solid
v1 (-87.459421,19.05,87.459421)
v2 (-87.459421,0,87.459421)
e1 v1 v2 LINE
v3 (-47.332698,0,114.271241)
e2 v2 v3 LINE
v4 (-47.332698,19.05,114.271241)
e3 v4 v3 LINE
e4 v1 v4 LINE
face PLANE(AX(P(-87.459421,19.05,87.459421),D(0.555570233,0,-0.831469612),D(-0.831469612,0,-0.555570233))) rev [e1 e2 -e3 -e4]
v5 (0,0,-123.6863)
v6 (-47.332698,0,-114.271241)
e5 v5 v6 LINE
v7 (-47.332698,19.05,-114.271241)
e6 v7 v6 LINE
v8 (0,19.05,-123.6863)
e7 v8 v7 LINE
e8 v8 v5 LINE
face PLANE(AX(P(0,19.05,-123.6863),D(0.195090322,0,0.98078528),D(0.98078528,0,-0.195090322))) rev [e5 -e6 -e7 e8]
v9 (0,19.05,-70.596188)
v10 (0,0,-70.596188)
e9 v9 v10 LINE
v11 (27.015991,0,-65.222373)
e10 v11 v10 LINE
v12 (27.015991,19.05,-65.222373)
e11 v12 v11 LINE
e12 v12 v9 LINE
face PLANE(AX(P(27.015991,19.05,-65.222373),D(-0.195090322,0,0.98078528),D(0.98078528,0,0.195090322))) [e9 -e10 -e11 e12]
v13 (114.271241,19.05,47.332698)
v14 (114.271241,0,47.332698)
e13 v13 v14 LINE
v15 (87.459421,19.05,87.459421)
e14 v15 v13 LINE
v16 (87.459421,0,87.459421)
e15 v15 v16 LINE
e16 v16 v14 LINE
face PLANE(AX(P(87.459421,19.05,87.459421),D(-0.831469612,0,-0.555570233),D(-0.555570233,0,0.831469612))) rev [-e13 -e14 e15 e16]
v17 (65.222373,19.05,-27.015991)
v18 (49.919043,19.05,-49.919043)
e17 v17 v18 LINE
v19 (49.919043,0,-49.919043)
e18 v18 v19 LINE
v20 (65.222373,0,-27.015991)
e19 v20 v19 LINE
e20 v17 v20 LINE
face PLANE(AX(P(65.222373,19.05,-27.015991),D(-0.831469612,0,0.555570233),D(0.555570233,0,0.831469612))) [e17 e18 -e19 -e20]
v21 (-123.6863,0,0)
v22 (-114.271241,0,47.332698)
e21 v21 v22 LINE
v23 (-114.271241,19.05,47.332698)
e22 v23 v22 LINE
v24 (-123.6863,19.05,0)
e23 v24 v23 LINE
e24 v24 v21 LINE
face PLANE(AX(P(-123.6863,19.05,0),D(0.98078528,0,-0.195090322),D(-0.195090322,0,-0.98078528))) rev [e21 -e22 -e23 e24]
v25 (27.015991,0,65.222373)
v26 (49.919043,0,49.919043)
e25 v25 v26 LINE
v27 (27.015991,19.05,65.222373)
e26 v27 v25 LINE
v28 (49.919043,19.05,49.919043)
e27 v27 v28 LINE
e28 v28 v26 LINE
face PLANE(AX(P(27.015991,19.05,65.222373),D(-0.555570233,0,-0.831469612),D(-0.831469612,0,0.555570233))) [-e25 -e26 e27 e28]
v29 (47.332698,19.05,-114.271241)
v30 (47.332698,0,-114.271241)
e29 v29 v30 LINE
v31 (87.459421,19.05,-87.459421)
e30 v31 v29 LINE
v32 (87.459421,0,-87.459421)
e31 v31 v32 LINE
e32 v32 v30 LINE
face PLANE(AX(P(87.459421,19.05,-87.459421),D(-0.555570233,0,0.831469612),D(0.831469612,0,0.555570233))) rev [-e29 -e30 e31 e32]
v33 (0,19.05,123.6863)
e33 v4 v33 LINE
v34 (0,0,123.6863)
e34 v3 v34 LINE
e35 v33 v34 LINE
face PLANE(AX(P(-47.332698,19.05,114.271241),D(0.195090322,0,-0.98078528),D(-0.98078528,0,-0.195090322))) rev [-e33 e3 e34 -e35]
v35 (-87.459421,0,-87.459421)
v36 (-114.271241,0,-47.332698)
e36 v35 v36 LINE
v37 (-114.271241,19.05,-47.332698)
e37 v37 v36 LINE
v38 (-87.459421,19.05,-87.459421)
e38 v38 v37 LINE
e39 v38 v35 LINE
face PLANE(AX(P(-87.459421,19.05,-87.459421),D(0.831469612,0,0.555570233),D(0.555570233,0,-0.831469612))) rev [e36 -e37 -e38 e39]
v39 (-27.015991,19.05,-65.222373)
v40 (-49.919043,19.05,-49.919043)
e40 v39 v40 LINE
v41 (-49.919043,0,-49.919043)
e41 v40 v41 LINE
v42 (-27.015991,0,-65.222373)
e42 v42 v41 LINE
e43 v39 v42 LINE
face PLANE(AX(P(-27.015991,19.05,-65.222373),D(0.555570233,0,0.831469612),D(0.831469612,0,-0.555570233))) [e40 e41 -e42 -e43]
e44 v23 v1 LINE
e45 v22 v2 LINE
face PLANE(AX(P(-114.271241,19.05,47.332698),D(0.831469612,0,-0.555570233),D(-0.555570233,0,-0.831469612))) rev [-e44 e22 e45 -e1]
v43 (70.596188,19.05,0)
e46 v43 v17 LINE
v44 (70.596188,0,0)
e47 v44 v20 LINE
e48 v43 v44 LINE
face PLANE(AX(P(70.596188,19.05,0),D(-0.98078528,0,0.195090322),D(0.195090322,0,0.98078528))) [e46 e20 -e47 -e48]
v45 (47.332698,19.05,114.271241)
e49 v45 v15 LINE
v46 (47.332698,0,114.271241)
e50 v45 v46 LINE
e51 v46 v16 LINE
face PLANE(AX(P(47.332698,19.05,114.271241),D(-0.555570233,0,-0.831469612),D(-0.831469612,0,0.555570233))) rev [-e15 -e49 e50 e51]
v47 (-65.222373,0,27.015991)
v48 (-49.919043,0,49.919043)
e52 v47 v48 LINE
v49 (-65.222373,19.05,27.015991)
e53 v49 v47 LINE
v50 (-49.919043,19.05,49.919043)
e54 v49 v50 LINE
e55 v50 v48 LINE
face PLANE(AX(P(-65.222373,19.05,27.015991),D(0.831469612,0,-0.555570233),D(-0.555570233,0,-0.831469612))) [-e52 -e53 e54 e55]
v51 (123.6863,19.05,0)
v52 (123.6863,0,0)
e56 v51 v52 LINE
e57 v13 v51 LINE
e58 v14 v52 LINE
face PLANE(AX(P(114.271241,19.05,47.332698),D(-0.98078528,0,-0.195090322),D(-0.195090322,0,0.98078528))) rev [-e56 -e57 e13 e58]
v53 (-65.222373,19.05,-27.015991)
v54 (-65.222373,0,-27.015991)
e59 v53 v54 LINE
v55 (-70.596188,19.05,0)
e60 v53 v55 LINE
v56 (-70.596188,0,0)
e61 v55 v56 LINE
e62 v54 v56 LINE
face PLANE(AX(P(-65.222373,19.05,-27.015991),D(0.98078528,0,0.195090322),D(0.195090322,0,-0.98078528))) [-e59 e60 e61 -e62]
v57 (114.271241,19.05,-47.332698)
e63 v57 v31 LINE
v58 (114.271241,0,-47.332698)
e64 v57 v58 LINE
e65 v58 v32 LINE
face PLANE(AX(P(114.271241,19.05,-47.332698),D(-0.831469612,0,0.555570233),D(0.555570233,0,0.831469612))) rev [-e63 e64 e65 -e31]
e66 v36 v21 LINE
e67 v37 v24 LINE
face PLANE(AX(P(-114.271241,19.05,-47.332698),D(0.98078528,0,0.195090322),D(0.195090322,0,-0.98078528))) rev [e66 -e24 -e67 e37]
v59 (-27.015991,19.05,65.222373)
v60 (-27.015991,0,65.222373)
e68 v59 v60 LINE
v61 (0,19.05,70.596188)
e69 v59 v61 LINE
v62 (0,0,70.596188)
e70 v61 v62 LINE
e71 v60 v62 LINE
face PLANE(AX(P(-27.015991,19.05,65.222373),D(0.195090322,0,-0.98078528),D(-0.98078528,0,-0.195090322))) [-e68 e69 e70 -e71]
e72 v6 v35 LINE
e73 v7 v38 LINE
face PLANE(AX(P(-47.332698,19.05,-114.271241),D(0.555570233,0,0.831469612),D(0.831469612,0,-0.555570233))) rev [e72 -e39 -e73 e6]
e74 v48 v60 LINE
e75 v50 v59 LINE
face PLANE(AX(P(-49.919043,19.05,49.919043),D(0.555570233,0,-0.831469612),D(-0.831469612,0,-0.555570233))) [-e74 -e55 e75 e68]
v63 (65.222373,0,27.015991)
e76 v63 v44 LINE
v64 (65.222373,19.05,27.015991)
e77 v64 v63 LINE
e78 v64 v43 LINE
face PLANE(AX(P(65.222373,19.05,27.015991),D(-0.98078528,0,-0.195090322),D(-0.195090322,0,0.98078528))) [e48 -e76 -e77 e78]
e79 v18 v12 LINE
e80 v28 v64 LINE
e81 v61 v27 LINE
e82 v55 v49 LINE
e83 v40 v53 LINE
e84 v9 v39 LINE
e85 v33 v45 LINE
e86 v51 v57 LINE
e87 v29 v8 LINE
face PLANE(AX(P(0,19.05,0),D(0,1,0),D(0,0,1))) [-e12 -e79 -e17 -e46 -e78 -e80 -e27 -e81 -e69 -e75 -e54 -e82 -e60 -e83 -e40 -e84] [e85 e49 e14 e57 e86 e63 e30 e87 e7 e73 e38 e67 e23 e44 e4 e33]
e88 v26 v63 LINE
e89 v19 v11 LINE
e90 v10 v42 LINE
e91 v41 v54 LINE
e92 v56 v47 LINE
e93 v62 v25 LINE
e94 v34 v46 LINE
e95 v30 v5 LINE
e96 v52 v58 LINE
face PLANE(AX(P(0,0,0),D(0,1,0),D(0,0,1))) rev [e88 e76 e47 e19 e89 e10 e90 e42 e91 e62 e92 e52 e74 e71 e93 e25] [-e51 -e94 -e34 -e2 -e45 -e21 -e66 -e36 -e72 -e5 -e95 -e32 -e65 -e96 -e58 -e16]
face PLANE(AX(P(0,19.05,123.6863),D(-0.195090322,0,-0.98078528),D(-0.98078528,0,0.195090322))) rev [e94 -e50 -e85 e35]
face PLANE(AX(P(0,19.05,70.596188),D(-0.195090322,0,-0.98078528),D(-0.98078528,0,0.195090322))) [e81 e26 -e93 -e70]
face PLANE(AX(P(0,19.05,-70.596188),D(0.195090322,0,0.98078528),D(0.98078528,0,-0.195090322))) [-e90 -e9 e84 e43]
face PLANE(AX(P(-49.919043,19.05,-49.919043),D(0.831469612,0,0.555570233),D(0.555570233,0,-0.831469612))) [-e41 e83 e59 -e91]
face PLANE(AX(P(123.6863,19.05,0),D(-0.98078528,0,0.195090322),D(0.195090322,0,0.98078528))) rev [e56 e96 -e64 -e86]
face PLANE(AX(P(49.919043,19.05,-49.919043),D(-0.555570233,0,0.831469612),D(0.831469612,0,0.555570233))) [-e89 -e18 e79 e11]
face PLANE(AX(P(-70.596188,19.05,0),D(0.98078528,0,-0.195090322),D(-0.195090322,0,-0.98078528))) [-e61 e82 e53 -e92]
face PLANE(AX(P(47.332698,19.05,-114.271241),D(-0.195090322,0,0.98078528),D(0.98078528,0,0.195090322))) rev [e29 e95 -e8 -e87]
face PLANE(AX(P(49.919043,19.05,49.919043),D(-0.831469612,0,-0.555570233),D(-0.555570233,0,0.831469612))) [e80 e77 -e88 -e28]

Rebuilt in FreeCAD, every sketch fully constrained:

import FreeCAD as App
import Part
import Sketcher
Q = App.Units.Quantity


def add_polygon(sketch, points):
    """Adds a closed chain of lines whose ends are joined by coincident constraints."""
    first, n = sketch.GeometryCount, len(points)
    for a, b in zip(points, points[1:] + points[:1]):
        sketch.addGeometry(Part.LineSegment(App.Vector(*a, 0), App.Vector(*b, 0)), False)
    for i in range(n):
        sketch.addConstraint(Sketcher.Constraint("Coincident", first + i, 2, first + (i + 1) % n, 1))

doc = App.newDocument("Part")
params = doc.addObject("Spreadsheet::Sheet", "Params")
for row, (alias, value) in enumerate([
    ("sketch1_length", "1.9 in"),
    ("pad1_length", "0.75 in"),
], start=1):
    params.set(f"A{row}", alias)
    params.set(f"B{row}", "=" + value)
    params.setAlias(f"B{row}", alias)

body = doc.addObject("PartDesign::Body", "Body")

# Sketch on XZ plane
sketch1 = body.newObject("Sketcher::SketchObject", "Sketch")
sketch1.AttachmentSupport = (doc.getObject("XZ_Plane"), [""])
sketch1.MapMode = "FlatFace"
add_polygon(sketch1, [(123.6863, 0), (114.271241, -47.332698), (87.459421, -87.459421), (47.332698, -114.271241), (0, -123.6863), (-47.332698, -114.271241), (-87.459421, -87.459421), (-114.271241, -47.332698), (-123.6863, 0), (-114.271241, 47.332698), (-87.459421, 87.459421), (-47.332698, 114.271241), (0, 123.6863), (47.332698, 114.271241), (87.459421, 87.459421), (114.271241, 47.332698)])  # lines 0-15
add_polygon(sketch1, [(65.222373, -27.015991), (70.596188, 0), (65.222373, 27.015991), (49.919043, 49.919043), (27.015991, 65.222373), (0, 70.596188), (-27.015991, 65.222373), (-49.919043, 49.919043), (-65.222373, 27.015991), (-70.596188, 0), (-65.222373, -27.015991), (-49.919043, -49.919043), (-27.015991, -65.222373), (0, -70.596188), (27.015991, -65.222373), (49.919043, -49.919043)])  # lines 16-31
sketch1.addConstraint([
    Sketcher.Constraint("Symmetric", 0, 2, 8, 2, -1, 1),
    Sketcher.Constraint("Symmetric", 1, 2, 9, 2, -1, 1),
    Sketcher.Constraint("Symmetric", 2, 2, 10, 2, -1, 1),
    Sketcher.Constraint("Symmetric", 3, 2, 11, 2, -1, 1),
    Sketcher.Constraint("Symmetric", 4, 2, 12, 2, -1, 1),
    Sketcher.Constraint("Symmetric", 5, 2, 13, 2, -1, 1),
    Sketcher.Constraint("Symmetric", 6, 2, 14, 2, -1, 1),
    Sketcher.Constraint("Symmetric", 7, 2, 15, 2, -1, 1),
    Sketcher.Constraint("Symmetric", 16, 2, 24, 2, -1, 1),
    Sketcher.Constraint("Symmetric", 17, 2, 25, 2, -1, 1),
    Sketcher.Constraint("Symmetric", 18, 2, 26, 2, -1, 1),
    Sketcher.Constraint("Symmetric", 19, 2, 27, 2, -1, 1),
    Sketcher.Constraint("Symmetric", 20, 2, 28, 2, -1, 1),
    Sketcher.Constraint("Symmetric", 21, 2, 29, 2, -1, 1),
    Sketcher.Constraint("Symmetric", 22, 2, 30, 2, -1, 1),
    Sketcher.Constraint("Symmetric", 23, 2, 31, 2, -1, 1),
    Sketcher.Constraint("Symmetric", 2, 2, 4, 2, -2),
    Sketcher.Constraint("Symmetric", 1, 2, 5, 2, -2),
    Sketcher.Constraint("Symmetric", 0, 2, 6, 2, -2),
    Sketcher.Constraint("Symmetric", 19, 2, 21, 2, -2),
    Sketcher.Constraint("Symmetric", 18, 2, 22, 2, -2),
    Sketcher.Constraint("Symmetric", 17, 2, 23, 2, -2),
    Sketcher.Constraint("PointOnObject", 3, 2, -2),
    Sketcher.Constraint("PointOnObject", 7, 2, -1),
    Sketcher.Constraint("PointOnObject", 16, 2, -1),
    Sketcher.Constraint("PointOnObject", 20, 2, -2),
    Sketcher.Constraint("Perpendicular", 0, 4),
    Sketcher.Constraint("Perpendicular", 1, 5),
    Sketcher.Constraint("Perpendicular", 12, 16),
    Sketcher.Constraint("Parallel", 14, 18),
    Sketcher.Constraint("Parallel", 13, 19),
    Sketcher.Constraint("Perpendicular", 16, 20),
    Sketcher.Constraint("Equal", 0, 1),
    Sketcher.Constraint("Equal", 1, 2),
    Sketcher.Constraint("Equal", 2, 3),
    Sketcher.Constraint("Equal", 17, 18),
    Sketcher.Constraint("Equal", 18, 19),
    Sketcher.Constraint("Equal", 19, 20),
    Sketcher.Constraint("Distance", 0, Q("1.9 in")),
    Sketcher.Constraint("Angle", 0, Q("-101.25 deg")),
    Sketcher.Constraint("Angle", 1, Q("-123.75 deg")),
    Sketcher.Constraint("DistanceY", -1, 1, 17, 2, 27.015991),
])
sketch1.setExpression("Constraints[70]", "Params.sketch1_length")
pad1 = body.newObject("PartDesign::Pad", "Pad")
pad1.Profile = sketch1
pad1.setExpression("Length", "Params.pad1_length")
pad1.Reversed = True

doc.recompute()
